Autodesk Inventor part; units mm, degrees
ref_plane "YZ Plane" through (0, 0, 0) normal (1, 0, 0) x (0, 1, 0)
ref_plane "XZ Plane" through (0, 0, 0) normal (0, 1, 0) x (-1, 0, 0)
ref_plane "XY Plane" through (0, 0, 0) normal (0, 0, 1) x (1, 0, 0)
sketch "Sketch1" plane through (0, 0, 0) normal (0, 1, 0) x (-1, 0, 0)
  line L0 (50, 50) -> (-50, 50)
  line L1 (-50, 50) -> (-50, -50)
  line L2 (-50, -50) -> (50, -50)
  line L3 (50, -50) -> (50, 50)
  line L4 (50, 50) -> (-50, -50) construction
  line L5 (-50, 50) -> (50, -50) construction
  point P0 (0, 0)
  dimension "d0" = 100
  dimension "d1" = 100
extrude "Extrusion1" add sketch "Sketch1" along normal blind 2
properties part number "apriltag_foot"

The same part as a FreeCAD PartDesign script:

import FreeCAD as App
import Part
import Sketcher
Q = App.Units.Quantity


def add_polygon(sketch, points):
    """Adds a closed chain of lines whose ends are joined by coincident constraints."""
    first, n = sketch.GeometryCount, len(points)
    for a, b in zip(points, points[1:] + points[:1]):
        sketch.addGeometry(Part.LineSegment(App.Vector(*a, 0), App.Vector(*b, 0)), False)
    for i in range(n):
        sketch.addConstraint(Sketcher.Constraint("Coincident", first + i, 2, first + (i + 1) % n, 1))

doc = App.newDocument("Part")
params = doc.addObject("Spreadsheet::Sheet", "Params")
for row, (alias, value) in enumerate([
    ("sketch1_width", "100 mm"),
    ("pad1_length", "2 mm"),
], start=1):
    params.set(f"A{row}", alias)
    params.set(f"B{row}", "=" + value)
    params.setAlias(f"B{row}", alias)

body = doc.addObject("PartDesign::Body", "Body")

# Sketch on XZ plane
sketch1 = doc.addObject("Sketcher::SketchObject", "Sketch")
body.addObject(sketch1)
sketch1.AttachmentSupport = (doc.XZ_Plane, [""])
sketch1.MapMode = "FlatFace"
add_polygon(sketch1, [(-50, -50), (-50, 50), (50, 50), (50, -50)])  # lines 0-3
sketch1.addConstraint([
    Sketcher.Constraint("Vertical", 0),
    Sketcher.Constraint("Horizontal", 1),
    Sketcher.Constraint("Vertical", 2),
    Sketcher.Constraint("Horizontal", 3),
    Sketcher.Constraint("Symmetric", 0, 2, 2, 2, -1, 1),
    Sketcher.Constraint("Equal", 3, 0),
    Sketcher.Constraint("DistanceX", 1, 1, 1, 2, Q("100 mm")),
])
sketch1.setExpression("Constraints[10]", "Params.sketch1_width")
pad1 = doc.addObject("PartDesign::Pad", "Pad")
body.addObject(pad1)
pad1.Profile = sketch1
pad1.setExpression("Length", "Params.pad1_length")
pad1.Reversed = True

doc.recompute()
